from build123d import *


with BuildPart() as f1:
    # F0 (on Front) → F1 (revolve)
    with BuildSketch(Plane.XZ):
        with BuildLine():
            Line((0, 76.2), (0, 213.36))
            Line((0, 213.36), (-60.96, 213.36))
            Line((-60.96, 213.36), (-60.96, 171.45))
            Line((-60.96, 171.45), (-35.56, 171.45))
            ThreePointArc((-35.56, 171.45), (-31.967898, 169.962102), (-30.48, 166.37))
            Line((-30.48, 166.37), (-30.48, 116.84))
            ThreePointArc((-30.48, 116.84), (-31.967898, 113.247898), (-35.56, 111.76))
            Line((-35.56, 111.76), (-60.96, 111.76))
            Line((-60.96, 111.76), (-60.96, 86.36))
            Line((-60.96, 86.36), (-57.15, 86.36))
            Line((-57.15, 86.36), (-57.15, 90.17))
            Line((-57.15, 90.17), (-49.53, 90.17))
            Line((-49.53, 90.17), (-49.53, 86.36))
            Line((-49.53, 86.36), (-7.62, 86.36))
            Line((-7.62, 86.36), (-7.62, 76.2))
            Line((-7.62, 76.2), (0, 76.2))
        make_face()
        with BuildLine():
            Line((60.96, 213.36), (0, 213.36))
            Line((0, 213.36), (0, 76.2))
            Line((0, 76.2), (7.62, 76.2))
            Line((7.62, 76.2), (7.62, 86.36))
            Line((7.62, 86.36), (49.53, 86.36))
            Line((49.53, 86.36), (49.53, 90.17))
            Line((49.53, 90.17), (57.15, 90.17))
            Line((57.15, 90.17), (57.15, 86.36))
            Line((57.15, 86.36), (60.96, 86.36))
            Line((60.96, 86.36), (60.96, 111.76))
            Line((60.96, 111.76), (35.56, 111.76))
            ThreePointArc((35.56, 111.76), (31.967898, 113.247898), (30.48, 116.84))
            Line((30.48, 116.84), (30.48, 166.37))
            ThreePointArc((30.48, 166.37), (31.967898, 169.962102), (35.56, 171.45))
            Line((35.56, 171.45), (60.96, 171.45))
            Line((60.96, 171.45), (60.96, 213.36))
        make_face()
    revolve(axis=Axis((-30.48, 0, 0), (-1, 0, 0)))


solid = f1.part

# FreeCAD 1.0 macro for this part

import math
import FreeCAD as App
import Part
import Sketcher
from FreeCAD import Vector
Q = App.Units.Quantity

doc = App.newDocument("Part")
body = doc.addObject("PartDesign::Body", "Body")

sketch1 = body.newObject("Sketcher::SketchObject", "Sketch")
sketch1.AttachmentSupport = (doc.getObject("XZ_Plane"), [""])
sketch1.MapMode = "FlatFace"
sketch1.addGeometry(Part.LineSegment(Vector(-61, 213.4, 0), Vector(-61, 171.4, 0)), False)
sketch1.addGeometry(Part.LineSegment(Vector(-61, 171.4, 0), Vector(-35.6, 171.4, 0)), False)
sketch1.addGeometry(Part.ArcOfCircle(Part.Circle(Vector(-35.6, 166.4, 0), Vector(0, 0, 1), 5.1), math.radians(0), math.radians(90)), False)
sketch1.addGeometry(Part.LineSegment(Vector(-30.5, 166.4, 0), Vector(-30.5, 116.8, 0)), False)
sketch1.addGeometry(Part.ArcOfCircle(Part.Circle(Vector(-35.6, 116.8, 0), Vector(0, 0, 1), 5.1), math.radians(-90), math.radians(0)), False)
sketch1.addGeometry(Part.LineSegment(Vector(-35.6, 111.8, 0), Vector(-61, 111.8, 0)), False)
sketch1.addGeometry(Part.LineSegment(Vector(-61, 111.8, 0), Vector(-61, 86.4, 0)), False)
sketch1.addGeometry(Part.LineSegment(Vector(-61, 86.4, 0), Vector(-57.1, 86.4, 0)), False)
sketch1.addGeometry(Part.LineSegment(Vector(-57.1, 86.4, 0), Vector(-57.1, 90.2, 0)), False)
sketch1.addGeometry(Part.LineSegment(Vector(-57.1, 90.2, 0), Vector(-49.5, 90.2, 0)), False)
sketch1.addGeometry(Part.LineSegment(Vector(-49.5, 90.2, 0), Vector(-49.5, 86.4, 0)), False)
sketch1.addGeometry(Part.LineSegment(Vector(-49.5, 86.4, 0), Vector(-7.6, 86.4, 0)), False)
sketch1.addGeometry(Part.LineSegment(Vector(-7.6, 86.4, 0), Vector(-7.6, 76.2, 0)), False)
sketch1.addGeometry(Part.LineSegment(Vector(-7.6, 76.2, 0), Vector(7.6, 76.2, 0)), False)
sketch1.addGeometry(Part.LineSegment(Vector(7.6, 76.2, 0), Vector(7.6, 86.4, 0)), False)
sketch1.addGeometry(Part.LineSegment(Vector(7.6, 86.4, 0), Vector(49.5, 86.4, 0)), False)
sketch1.addGeometry(Part.LineSegment(Vector(49.5, 86.4, 0), Vector(49.5, 90.2, 0)), False)
sketch1.addGeometry(Part.LineSegment(Vector(49.5, 90.2, 0), Vector(57.1, 90.2, 0)), False)
sketch1.addGeometry(Part.LineSegment(Vector(57.1, 90.2, 0), Vector(57.1, 86.4, 0)), False)
sketch1.addGeometry(Part.LineSegment(Vector(57.1, 86.4, 0), Vector(61, 86.4, 0)), False)
sketch1.addGeometry(Part.LineSegment(Vector(61, 86.4, 0), Vector(61, 111.8, 0)), False)
sketch1.addGeometry(Part.LineSegment(Vector(61, 111.8, 0), Vector(35.6, 111.8, 0)), False)
sketch1.addGeometry(Part.ArcOfCircle(Part.Circle(Vector(35.6, 116.8, 0), Vector(0, 0, 1), 5.1), math.radians(-180), math.radians(-90)), False)
sketch1.addGeometry(Part.LineSegment(Vector(30.5, 116.8, 0), Vector(30.5, 166.4, 0)), False)
sketch1.addGeometry(Part.ArcOfCircle(Part.Circle(Vector(35.6, 166.4, 0), Vector(0, 0, 1), 5.1), math.radians(90), math.radians(180)), False)
sketch1.addGeometry(Part.LineSegment(Vector(35.6, 171.4, 0), Vector(61, 171.4, 0)), False)
sketch1.addGeometry(Part.LineSegment(Vector(61, 171.4, 0), Vector(61, 213.4, 0)), False)
sketch1.addGeometry(Part.LineSegment(Vector(61, 213.4, 0), Vector(-61, 213.4, 0)), False)
sketch1.addConstraint(Sketcher.Constraint("Coincident", 0, 2, 1, 1))
sketch1.addConstraint(Sketcher.Constraint("Tangent", 1, 2, 2, 2))
sketch1.addConstraint(Sketcher.Constraint("Tangent", 2, 1, 3, 1))
sketch1.addConstraint(Sketcher.Constraint("Tangent", 3, 2, 4, 2))
sketch1.addConstraint(Sketcher.Constraint("Tangent", 4, 1, 5, 1))
sketch1.addConstraint(Sketcher.Constraint("Coincident", 5, 2, 6, 1))
sketch1.addConstraint(Sketcher.Constraint("Coincident", 6, 2, 7, 1))
sketch1.addConstraint(Sketcher.Constraint("Coincident", 7, 2, 8, 1))
sketch1.addConstraint(Sketcher.Constraint("Coincident", 8, 2, 9, 1))
sketch1.addConstraint(Sketcher.Constraint("Coincident", 9, 2, 10, 1))
sketch1.addConstraint(Sketcher.Constraint("Coincident", 10, 2, 11, 1))
sketch1.addConstraint(Sketcher.Constraint("Coincident", 11, 2, 12, 1))
sketch1.addConstraint(Sketcher.Constraint("Coincident", 12, 2, 13, 1))
sketch1.addConstraint(Sketcher.Constraint("Coincident", 13, 2, 14, 1))
sketch1.addConstraint(Sketcher.Constraint("Coincident", 14, 2, 15, 1))
sketch1.addConstraint(Sketcher.Constraint("Coincident", 15, 2, 16, 1))
sketch1.addConstraint(Sketcher.Constraint("Coincident", 16, 2, 17, 1))
sketch1.addConstraint(Sketcher.Constraint("Coincident", 17, 2, 18, 1))
sketch1.addConstraint(Sketcher.Constraint("Coincident", 18, 2, 19, 1))
sketch1.addConstraint(Sketcher.Constraint("Coincident", 19, 2, 20, 1))
sketch1.addConstraint(Sketcher.Constraint("Coincident", 20, 2, 21, 1))
sketch1.addConstraint(Sketcher.Constraint("Tangent", 21, 2, 22, 2))
sketch1.addConstraint(Sketcher.Constraint("Tangent", 22, 1, 23, 1))
sketch1.addConstraint(Sketcher.Constraint("Tangent", 23, 2, 24, 2))
sketch1.addConstraint(Sketcher.Constraint("Tangent", 24, 1, 25, 1))
sketch1.addConstraint(Sketcher.Constraint("Coincident", 25, 2, 26, 1))
sketch1.addConstraint(Sketcher.Constraint("Coincident", 26, 2, 27, 1))
sketch1.addConstraint(Sketcher.Constraint("Coincident", 27, 2, 0, 1))
sketch1.addConstraint(Sketcher.Constraint("Vertical", 0))
sketch1.addConstraint(Sketcher.Constraint("Horizontal", 1))
sketch1.addConstraint(Sketcher.Constraint("Vertical", 3))
sketch1.addConstraint(Sketcher.Constraint("Horizontal", 5))
sketch1.addConstraint(Sketcher.Constraint("Vertical", 6))
sketch1.addConstraint(Sketcher.Constraint("Horizontal", 7))
sketch1.addConstraint(Sketcher.Constraint("Vertical", 8))
sketch1.addConstraint(Sketcher.Constraint("Horizontal", 9))
sketch1.addConstraint(Sketcher.Constraint("Vertical", 10))
sketch1.addConstraint(Sketcher.Constraint("Horizontal", 11))
sketch1.addConstraint(Sketcher.Constraint("Vertical", 12))
sketch1.addConstraint(Sketcher.Constraint("Horizontal", 13))
sketch1.addConstraint(Sketcher.Constraint("Vertical", 14))
sketch1.addConstraint(Sketcher.Constraint("Horizontal", 15))
sketch1.addConstraint(Sketcher.Constraint("Vertical", 16))
sketch1.addConstraint(Sketcher.Constraint("Horizontal", 17))
sketch1.addConstraint(Sketcher.Constraint("Vertical", 18))
sketch1.addConstraint(Sketcher.Constraint("Horizontal", 19))
sketch1.addConstraint(Sketcher.Constraint("Vertical", 20))
sketch1.addConstraint(Sketcher.Constraint("Horizontal", 21))
sketch1.addConstraint(Sketcher.Constraint("Vertical", 23))
sketch1.addConstraint(Sketcher.Constraint("Horizontal", 25))
sketch1.addConstraint(Sketcher.Constraint("Vertical", 26))
sketch1.addConstraint(Sketcher.Constraint("Horizontal", 27))
sketch1.addConstraint(Sketcher.Constraint("Equal", 2, 4))
sketch1.addConstraint(Sketcher.Constraint("Equal", 4, 22))
sketch1.addConstraint(Sketcher.Constraint("Equal", 22, 24))
sketch1.addConstraint(Sketcher.Constraint("Symmetric", 4, 3, 22, 3, -2))
sketch1.addConstraint(Sketcher.Constraint("Symmetric", 11, 2, 14, 2, -2))
sketch1.addConstraint(Sketcher.Constraint("Symmetric", 9, 2, 16, 2, -2))
sketch1.addConstraint(Sketcher.Constraint("Symmetric", 7, 2, 18, 2, -2))
sketch1.addConstraint(Sketcher.Constraint("Symmetric", 0, 2, 25, 2, -2))
sketch1.addConstraint(Sketcher.Constraint("Horizontal", 7, 2, 10, 2))
sketch1.addConstraint(Sketcher.Constraint("Vertical", 0, 2, 5, 2))
sketch1.addConstraint(Sketcher.Constraint("Vertical", 20, 2, 25, 2))
sketch1.addConstraint(Sketcher.Constraint("Equal", 15, 0))
sketch1.addConstraint(Sketcher.Constraint("Equal", 25, 6))
sketch1.addConstraint(Sketcher.Constraint("Equal", 19, 8))
sketch1.addConstraint(Sketcher.Constraint("Radius", 2, Q("0.2000001 in")))
sketch1.addConstraint(Sketcher.Constraint("DistanceX", 1, 1, 1, 2, Q("1 in")))
sketch1.addConstraint(Sketcher.Constraint("DistanceX", 9, 1, 9, 2, Q("0.3 in")))
sketch1.addConstraint(Sketcher.Constraint("DistanceX", 13, 1, 13, 2, Q("0.6 in")))
sketch1.addConstraint(Sketcher.Constraint("DistanceX", 27, 2, 27, 1, Q("4.8 in")))
sketch1.addConstraint(Sketcher.Constraint("DistanceY", 12, 2, 12, 1, Q("0.4 in")))
sketch1.addConstraint(Sketcher.Constraint("DistanceY", -1, 1, 12, 2, Q("3 in")))
sketch1.addConstraint(Sketcher.Constraint("DistanceX", 7, 1, 7, 2, Q("0.15 in")))
sketch1.addConstraint(Sketcher.Constraint("DistanceY", 3, 2, 3, 1, Q("1.95 in")))
revolution = body.newObject("PartDesign::Revolution", "Revolution")
revolution.Profile = sketch1
revolution.ReferenceAxis = (sketch1, ["H_Axis"])
revolution.Angle = 360

doc.recompute()
